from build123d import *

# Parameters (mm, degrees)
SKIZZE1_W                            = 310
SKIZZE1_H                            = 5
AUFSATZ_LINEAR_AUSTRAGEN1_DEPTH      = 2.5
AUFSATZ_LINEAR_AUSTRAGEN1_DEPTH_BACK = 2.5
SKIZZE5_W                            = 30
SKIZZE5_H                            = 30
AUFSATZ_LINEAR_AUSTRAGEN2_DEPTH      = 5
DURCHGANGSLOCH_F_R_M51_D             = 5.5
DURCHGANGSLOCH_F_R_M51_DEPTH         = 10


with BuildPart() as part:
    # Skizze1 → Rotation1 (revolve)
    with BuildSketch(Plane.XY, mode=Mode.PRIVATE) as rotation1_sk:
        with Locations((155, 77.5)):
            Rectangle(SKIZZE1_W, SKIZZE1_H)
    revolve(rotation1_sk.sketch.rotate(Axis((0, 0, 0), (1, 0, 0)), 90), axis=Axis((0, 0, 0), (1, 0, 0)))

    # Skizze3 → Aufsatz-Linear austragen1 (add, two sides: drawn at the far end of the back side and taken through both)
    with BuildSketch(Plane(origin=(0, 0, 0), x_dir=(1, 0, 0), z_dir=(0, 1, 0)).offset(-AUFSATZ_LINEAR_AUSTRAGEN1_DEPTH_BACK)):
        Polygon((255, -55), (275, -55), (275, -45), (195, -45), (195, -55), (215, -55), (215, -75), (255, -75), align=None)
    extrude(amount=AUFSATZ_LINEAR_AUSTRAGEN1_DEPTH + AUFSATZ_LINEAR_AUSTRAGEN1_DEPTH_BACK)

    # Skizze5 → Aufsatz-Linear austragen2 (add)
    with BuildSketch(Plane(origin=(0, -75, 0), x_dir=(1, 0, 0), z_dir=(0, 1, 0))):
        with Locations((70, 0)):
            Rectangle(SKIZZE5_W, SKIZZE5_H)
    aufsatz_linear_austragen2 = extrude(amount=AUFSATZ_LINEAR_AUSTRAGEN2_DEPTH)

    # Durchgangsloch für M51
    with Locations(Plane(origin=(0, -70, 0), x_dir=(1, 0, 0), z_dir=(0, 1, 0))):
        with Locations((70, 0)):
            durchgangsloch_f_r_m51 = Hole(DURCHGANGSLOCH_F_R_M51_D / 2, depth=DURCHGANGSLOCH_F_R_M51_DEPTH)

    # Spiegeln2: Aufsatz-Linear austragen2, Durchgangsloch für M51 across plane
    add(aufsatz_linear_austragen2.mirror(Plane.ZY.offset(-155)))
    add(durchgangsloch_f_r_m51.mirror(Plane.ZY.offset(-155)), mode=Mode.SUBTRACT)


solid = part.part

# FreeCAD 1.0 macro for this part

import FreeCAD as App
import Part
import Sketcher
from FreeCAD import Vector

doc = App.newDocument("Part")
body = doc.addObject("PartDesign::Body", "Body")

sketch1 = body.newObject("Sketcher::SketchObject", "Sketch")
sketch1.AttachmentSupport = (doc.getObject("XY_Plane"), [""])
sketch1.MapMode = "FlatFace"
sketch1.addGeometry(Part.LineSegment(Vector(0, 80, 0), Vector(0, 75, 0)), False)
sketch1.addGeometry(Part.LineSegment(Vector(0, 75, 0), Vector(310, 75, 0)), False)
sketch1.addGeometry(Part.LineSegment(Vector(310, 75, 0), Vector(310, 80, 0)), False)
sketch1.addGeometry(Part.LineSegment(Vector(310, 80, 0), Vector(0, 80, 0)), False)
sketch1.addConstraint(Sketcher.Constraint("Coincident", 0, 2, 1, 1))
sketch1.addConstraint(Sketcher.Constraint("Coincident", 1, 2, 2, 1))
sketch1.addConstraint(Sketcher.Constraint("Coincident", 2, 2, 3, 1))
sketch1.addConstraint(Sketcher.Constraint("Coincident", 3, 2, 0, 1))
sketch1.addConstraint(Sketcher.Constraint("Vertical", 0))
sketch1.addConstraint(Sketcher.Constraint("Horizontal", 1))
sketch1.addConstraint(Sketcher.Constraint("Vertical", 2))
sketch1.addConstraint(Sketcher.Constraint("Horizontal", 3))
sketch1.addConstraint(Sketcher.Constraint("PointOnObject", 0, 2, -2))
sketch1.addConstraint(Sketcher.Constraint("DistanceX", 1, 1, 1, 2, 310.0))
sketch1.addConstraint(Sketcher.Constraint("DistanceY", 0, 2, 0, 1, 5.0))
sketch1.addConstraint(Sketcher.Constraint("DistanceY", -1, 1, 0, 2, 75.0))
revolution = body.newObject("PartDesign::Revolution", "Revolution")
revolution.Profile = sketch1
revolution.ReferenceAxis = (sketch1, ["H_Axis"])
revolution.Angle = 360

sketch2 = body.newObject("Sketcher::SketchObject", "Sketch001")
sketch2.AttachmentSupport = (doc.getObject("XZ_Plane"), [""])
sketch2.MapMode = "FlatFace"
sketch2.addGeometry(Part.LineSegment(Vector(255, 55, 0), Vector(275, 55, 0)), False)
sketch2.addGeometry(Part.LineSegment(Vector(275, 55, 0), Vector(275, 45, 0)), False)
sketch2.addGeometry(Part.LineSegment(Vector(275, 45, 0), Vector(195, 45, 0)), False)
sketch2.addGeometry(Part.LineSegment(Vector(195, 45, 0), Vector(195, 55, 0)), False)
sketch2.addGeometry(Part.LineSegment(Vector(195, 55, 0), Vector(215, 55, 0)), False)
sketch2.addGeometry(Part.LineSegment(Vector(215, 55, 0), Vector(215, 75, 0)), False)
sketch2.addGeometry(Part.LineSegment(Vector(215, 75, 0), Vector(255, 75, 0)), False)
sketch2.addGeometry(Part.LineSegment(Vector(255, 75, 0), Vector(255, 55, 0)), False)
sketch2.addConstraint(Sketcher.Constraint("Coincident", 0, 2, 1, 1))
sketch2.addConstraint(Sketcher.Constraint("Coincident", 1, 2, 2, 1))
sketch2.addConstraint(Sketcher.Constraint("Coincident", 2, 2, 3, 1))
sketch2.addConstraint(Sketcher.Constraint("Coincident", 3, 2, 4, 1))
sketch2.addConstraint(Sketcher.Constraint("Coincident", 4, 2, 5, 1))
sketch2.addConstraint(Sketcher.Constraint("Coincident", 5, 2, 6, 1))
sketch2.addConstraint(Sketcher.Constraint("Coincident", 6, 2, 7, 1))
sketch2.addConstraint(Sketcher.Constraint("Coincident", 7, 2, 0, 1))
sketch2.addConstraint(Sketcher.Constraint("Horizontal", 0))
sketch2.addConstraint(Sketcher.Constraint("Vertical", 1))
sketch2.addConstraint(Sketcher.Constraint("Horizontal", 2))
sketch2.addConstraint(Sketcher.Constraint("Vertical", 3))
sketch2.addConstraint(Sketcher.Constraint("Horizontal", 4))
sketch2.addConstraint(Sketcher.Constraint("Vertical", 5))
sketch2.addConstraint(Sketcher.Constraint("Horizontal", 6))
sketch2.addConstraint(Sketcher.Constraint("Vertical", 7))
sketch2.addConstraint(Sketcher.Constraint("Horizontal", 0, 2, 3, 2))
sketch2.addConstraint(Sketcher.Constraint("Equal", 0, 4))
sketch2.addConstraint(Sketcher.Constraint("Equal", 4, 5))
sketch2.addConstraint(Sketcher.Constraint("DistanceX", 0, 1, 0, 2, 20.0))
sketch2.addConstraint(Sketcher.Constraint("DistanceX", 2, 2, 2, 1, 80.0))
sketch2.addConstraint(Sketcher.Constraint("DistanceY", 1, 2, 1, 1, 10.0))
sketch2.addConstraint(Sketcher.Constraint("DistanceX", -1, 1, 0, 2, 275.0))
sketch2.addConstraint(Sketcher.Constraint("DistanceY", -1, 1, 0, 2, 55.0))
pad1 = body.newObject("PartDesign::Pad", "Pad")
pad1.Profile = sketch2
pad1.Type = "TwoLengths"
pad1.Length = 2.5
pad1.Length2 = 2.5
pad1.Reversed = True

sketch3 = body.newObject("Sketcher::SketchObject", "Sketch002")
sketch3.AttachmentSupport = (doc.getObject("XZ_Plane"), [""])
sketch3.MapMode = "FlatFace"
sketch3.AttachmentOffset = App.Placement(Vector(0, 0, 75), App.Rotation())
sketch3.addGeometry(Part.LineSegment(Vector(55, -15, 0), Vector(55, 15, 0)), False)
sketch3.addGeometry(Part.LineSegment(Vector(55, 15, 0), Vector(85, 15, 0)), False)
sketch3.addGeometry(Part.LineSegment(Vector(85, 15, 0), Vector(85, -15, 0)), False)
sketch3.addGeometry(Part.LineSegment(Vector(85, -15, 0), Vector(55, -15, 0)), False)
sketch3.addConstraint(Sketcher.Constraint("Coincident", 0, 2, 1, 1))
sketch3.addConstraint(Sketcher.Constraint("Coincident", 1, 2, 2, 1))
sketch3.addConstraint(Sketcher.Constraint("Coincident", 2, 2, 3, 1))
sketch3.addConstraint(Sketcher.Constraint("Coincident", 3, 2, 0, 1))
sketch3.addConstraint(Sketcher.Constraint("Vertical", 0))
sketch3.addConstraint(Sketcher.Constraint("Horizontal", 1))
sketch3.addConstraint(Sketcher.Constraint("Vertical", 2))
sketch3.addConstraint(Sketcher.Constraint("Horizontal", 3))
sketch3.addConstraint(Sketcher.Constraint("Equal", 3, 0))
sketch3.addConstraint(Sketcher.Constraint("DistanceX", 1, 1, 1, 2, 30.0))
sketch3.addConstraint(Sketcher.Constraint("DistanceX", -1, 1, 0, 2, 55.0))
sketch3.addConstraint(Sketcher.Constraint("DistanceY", -1, 1, 0, 2, 15.0))
pad2 = body.newObject("PartDesign::Pad", "Pad001")
pad2.Profile = sketch3
pad2.Length = 5
pad2.Reversed = True

sketch4 = body.newObject("Sketcher::SketchObject", "Sketch003")
sketch4.AttachmentSupport = (doc.getObject("XZ_Plane"), [""])
sketch4.MapMode = "FlatFace"
sketch4.AttachmentOffset = App.Placement(Vector(0, 0, 70), App.Rotation())
sketch4.addGeometry(Part.Circle(Vector(70, 0, 0), Vector(0, 0, 1), 2.75), False)
sketch4.addConstraint(Sketcher.Constraint("PointOnObject", 0, 3, -1))
sketch4.addConstraint(Sketcher.Constraint("Diameter", 0, 5.5))
sketch4.addConstraint(Sketcher.Constraint("DistanceX", -1, 1, 0, 3, 70.0))
doc.recompute()
hole = body.newObject("PartDesign::Hole", "Hole")
hole.Profile = sketch4
hole.ThreadType = "None"
hole.Diameter = 5.5
hole.DepthType = "Dimension"
hole.Depth = 10
hole.DrillPoint = "Flat"
hole.Reversed = True
doc.recompute()

datumplane = body.newObject("PartDesign::Plane", "DatumPlane")
datumplane.AttachmentSupport = (doc.getObject("YZ_Plane"), [""])
datumplane.MapMode = "FlatFace"
datumplane.AttachmentOffset = App.Placement(Vector(0, 0, 155), App.Rotation())
mirrored = body.newObject("PartDesign::Mirrored", "Mirrored")
mirrored.Originals = [pad2, hole]
mirrored.MirrorPlane = (datumplane, [""])
body.Tip = mirrored

doc.recompute()
